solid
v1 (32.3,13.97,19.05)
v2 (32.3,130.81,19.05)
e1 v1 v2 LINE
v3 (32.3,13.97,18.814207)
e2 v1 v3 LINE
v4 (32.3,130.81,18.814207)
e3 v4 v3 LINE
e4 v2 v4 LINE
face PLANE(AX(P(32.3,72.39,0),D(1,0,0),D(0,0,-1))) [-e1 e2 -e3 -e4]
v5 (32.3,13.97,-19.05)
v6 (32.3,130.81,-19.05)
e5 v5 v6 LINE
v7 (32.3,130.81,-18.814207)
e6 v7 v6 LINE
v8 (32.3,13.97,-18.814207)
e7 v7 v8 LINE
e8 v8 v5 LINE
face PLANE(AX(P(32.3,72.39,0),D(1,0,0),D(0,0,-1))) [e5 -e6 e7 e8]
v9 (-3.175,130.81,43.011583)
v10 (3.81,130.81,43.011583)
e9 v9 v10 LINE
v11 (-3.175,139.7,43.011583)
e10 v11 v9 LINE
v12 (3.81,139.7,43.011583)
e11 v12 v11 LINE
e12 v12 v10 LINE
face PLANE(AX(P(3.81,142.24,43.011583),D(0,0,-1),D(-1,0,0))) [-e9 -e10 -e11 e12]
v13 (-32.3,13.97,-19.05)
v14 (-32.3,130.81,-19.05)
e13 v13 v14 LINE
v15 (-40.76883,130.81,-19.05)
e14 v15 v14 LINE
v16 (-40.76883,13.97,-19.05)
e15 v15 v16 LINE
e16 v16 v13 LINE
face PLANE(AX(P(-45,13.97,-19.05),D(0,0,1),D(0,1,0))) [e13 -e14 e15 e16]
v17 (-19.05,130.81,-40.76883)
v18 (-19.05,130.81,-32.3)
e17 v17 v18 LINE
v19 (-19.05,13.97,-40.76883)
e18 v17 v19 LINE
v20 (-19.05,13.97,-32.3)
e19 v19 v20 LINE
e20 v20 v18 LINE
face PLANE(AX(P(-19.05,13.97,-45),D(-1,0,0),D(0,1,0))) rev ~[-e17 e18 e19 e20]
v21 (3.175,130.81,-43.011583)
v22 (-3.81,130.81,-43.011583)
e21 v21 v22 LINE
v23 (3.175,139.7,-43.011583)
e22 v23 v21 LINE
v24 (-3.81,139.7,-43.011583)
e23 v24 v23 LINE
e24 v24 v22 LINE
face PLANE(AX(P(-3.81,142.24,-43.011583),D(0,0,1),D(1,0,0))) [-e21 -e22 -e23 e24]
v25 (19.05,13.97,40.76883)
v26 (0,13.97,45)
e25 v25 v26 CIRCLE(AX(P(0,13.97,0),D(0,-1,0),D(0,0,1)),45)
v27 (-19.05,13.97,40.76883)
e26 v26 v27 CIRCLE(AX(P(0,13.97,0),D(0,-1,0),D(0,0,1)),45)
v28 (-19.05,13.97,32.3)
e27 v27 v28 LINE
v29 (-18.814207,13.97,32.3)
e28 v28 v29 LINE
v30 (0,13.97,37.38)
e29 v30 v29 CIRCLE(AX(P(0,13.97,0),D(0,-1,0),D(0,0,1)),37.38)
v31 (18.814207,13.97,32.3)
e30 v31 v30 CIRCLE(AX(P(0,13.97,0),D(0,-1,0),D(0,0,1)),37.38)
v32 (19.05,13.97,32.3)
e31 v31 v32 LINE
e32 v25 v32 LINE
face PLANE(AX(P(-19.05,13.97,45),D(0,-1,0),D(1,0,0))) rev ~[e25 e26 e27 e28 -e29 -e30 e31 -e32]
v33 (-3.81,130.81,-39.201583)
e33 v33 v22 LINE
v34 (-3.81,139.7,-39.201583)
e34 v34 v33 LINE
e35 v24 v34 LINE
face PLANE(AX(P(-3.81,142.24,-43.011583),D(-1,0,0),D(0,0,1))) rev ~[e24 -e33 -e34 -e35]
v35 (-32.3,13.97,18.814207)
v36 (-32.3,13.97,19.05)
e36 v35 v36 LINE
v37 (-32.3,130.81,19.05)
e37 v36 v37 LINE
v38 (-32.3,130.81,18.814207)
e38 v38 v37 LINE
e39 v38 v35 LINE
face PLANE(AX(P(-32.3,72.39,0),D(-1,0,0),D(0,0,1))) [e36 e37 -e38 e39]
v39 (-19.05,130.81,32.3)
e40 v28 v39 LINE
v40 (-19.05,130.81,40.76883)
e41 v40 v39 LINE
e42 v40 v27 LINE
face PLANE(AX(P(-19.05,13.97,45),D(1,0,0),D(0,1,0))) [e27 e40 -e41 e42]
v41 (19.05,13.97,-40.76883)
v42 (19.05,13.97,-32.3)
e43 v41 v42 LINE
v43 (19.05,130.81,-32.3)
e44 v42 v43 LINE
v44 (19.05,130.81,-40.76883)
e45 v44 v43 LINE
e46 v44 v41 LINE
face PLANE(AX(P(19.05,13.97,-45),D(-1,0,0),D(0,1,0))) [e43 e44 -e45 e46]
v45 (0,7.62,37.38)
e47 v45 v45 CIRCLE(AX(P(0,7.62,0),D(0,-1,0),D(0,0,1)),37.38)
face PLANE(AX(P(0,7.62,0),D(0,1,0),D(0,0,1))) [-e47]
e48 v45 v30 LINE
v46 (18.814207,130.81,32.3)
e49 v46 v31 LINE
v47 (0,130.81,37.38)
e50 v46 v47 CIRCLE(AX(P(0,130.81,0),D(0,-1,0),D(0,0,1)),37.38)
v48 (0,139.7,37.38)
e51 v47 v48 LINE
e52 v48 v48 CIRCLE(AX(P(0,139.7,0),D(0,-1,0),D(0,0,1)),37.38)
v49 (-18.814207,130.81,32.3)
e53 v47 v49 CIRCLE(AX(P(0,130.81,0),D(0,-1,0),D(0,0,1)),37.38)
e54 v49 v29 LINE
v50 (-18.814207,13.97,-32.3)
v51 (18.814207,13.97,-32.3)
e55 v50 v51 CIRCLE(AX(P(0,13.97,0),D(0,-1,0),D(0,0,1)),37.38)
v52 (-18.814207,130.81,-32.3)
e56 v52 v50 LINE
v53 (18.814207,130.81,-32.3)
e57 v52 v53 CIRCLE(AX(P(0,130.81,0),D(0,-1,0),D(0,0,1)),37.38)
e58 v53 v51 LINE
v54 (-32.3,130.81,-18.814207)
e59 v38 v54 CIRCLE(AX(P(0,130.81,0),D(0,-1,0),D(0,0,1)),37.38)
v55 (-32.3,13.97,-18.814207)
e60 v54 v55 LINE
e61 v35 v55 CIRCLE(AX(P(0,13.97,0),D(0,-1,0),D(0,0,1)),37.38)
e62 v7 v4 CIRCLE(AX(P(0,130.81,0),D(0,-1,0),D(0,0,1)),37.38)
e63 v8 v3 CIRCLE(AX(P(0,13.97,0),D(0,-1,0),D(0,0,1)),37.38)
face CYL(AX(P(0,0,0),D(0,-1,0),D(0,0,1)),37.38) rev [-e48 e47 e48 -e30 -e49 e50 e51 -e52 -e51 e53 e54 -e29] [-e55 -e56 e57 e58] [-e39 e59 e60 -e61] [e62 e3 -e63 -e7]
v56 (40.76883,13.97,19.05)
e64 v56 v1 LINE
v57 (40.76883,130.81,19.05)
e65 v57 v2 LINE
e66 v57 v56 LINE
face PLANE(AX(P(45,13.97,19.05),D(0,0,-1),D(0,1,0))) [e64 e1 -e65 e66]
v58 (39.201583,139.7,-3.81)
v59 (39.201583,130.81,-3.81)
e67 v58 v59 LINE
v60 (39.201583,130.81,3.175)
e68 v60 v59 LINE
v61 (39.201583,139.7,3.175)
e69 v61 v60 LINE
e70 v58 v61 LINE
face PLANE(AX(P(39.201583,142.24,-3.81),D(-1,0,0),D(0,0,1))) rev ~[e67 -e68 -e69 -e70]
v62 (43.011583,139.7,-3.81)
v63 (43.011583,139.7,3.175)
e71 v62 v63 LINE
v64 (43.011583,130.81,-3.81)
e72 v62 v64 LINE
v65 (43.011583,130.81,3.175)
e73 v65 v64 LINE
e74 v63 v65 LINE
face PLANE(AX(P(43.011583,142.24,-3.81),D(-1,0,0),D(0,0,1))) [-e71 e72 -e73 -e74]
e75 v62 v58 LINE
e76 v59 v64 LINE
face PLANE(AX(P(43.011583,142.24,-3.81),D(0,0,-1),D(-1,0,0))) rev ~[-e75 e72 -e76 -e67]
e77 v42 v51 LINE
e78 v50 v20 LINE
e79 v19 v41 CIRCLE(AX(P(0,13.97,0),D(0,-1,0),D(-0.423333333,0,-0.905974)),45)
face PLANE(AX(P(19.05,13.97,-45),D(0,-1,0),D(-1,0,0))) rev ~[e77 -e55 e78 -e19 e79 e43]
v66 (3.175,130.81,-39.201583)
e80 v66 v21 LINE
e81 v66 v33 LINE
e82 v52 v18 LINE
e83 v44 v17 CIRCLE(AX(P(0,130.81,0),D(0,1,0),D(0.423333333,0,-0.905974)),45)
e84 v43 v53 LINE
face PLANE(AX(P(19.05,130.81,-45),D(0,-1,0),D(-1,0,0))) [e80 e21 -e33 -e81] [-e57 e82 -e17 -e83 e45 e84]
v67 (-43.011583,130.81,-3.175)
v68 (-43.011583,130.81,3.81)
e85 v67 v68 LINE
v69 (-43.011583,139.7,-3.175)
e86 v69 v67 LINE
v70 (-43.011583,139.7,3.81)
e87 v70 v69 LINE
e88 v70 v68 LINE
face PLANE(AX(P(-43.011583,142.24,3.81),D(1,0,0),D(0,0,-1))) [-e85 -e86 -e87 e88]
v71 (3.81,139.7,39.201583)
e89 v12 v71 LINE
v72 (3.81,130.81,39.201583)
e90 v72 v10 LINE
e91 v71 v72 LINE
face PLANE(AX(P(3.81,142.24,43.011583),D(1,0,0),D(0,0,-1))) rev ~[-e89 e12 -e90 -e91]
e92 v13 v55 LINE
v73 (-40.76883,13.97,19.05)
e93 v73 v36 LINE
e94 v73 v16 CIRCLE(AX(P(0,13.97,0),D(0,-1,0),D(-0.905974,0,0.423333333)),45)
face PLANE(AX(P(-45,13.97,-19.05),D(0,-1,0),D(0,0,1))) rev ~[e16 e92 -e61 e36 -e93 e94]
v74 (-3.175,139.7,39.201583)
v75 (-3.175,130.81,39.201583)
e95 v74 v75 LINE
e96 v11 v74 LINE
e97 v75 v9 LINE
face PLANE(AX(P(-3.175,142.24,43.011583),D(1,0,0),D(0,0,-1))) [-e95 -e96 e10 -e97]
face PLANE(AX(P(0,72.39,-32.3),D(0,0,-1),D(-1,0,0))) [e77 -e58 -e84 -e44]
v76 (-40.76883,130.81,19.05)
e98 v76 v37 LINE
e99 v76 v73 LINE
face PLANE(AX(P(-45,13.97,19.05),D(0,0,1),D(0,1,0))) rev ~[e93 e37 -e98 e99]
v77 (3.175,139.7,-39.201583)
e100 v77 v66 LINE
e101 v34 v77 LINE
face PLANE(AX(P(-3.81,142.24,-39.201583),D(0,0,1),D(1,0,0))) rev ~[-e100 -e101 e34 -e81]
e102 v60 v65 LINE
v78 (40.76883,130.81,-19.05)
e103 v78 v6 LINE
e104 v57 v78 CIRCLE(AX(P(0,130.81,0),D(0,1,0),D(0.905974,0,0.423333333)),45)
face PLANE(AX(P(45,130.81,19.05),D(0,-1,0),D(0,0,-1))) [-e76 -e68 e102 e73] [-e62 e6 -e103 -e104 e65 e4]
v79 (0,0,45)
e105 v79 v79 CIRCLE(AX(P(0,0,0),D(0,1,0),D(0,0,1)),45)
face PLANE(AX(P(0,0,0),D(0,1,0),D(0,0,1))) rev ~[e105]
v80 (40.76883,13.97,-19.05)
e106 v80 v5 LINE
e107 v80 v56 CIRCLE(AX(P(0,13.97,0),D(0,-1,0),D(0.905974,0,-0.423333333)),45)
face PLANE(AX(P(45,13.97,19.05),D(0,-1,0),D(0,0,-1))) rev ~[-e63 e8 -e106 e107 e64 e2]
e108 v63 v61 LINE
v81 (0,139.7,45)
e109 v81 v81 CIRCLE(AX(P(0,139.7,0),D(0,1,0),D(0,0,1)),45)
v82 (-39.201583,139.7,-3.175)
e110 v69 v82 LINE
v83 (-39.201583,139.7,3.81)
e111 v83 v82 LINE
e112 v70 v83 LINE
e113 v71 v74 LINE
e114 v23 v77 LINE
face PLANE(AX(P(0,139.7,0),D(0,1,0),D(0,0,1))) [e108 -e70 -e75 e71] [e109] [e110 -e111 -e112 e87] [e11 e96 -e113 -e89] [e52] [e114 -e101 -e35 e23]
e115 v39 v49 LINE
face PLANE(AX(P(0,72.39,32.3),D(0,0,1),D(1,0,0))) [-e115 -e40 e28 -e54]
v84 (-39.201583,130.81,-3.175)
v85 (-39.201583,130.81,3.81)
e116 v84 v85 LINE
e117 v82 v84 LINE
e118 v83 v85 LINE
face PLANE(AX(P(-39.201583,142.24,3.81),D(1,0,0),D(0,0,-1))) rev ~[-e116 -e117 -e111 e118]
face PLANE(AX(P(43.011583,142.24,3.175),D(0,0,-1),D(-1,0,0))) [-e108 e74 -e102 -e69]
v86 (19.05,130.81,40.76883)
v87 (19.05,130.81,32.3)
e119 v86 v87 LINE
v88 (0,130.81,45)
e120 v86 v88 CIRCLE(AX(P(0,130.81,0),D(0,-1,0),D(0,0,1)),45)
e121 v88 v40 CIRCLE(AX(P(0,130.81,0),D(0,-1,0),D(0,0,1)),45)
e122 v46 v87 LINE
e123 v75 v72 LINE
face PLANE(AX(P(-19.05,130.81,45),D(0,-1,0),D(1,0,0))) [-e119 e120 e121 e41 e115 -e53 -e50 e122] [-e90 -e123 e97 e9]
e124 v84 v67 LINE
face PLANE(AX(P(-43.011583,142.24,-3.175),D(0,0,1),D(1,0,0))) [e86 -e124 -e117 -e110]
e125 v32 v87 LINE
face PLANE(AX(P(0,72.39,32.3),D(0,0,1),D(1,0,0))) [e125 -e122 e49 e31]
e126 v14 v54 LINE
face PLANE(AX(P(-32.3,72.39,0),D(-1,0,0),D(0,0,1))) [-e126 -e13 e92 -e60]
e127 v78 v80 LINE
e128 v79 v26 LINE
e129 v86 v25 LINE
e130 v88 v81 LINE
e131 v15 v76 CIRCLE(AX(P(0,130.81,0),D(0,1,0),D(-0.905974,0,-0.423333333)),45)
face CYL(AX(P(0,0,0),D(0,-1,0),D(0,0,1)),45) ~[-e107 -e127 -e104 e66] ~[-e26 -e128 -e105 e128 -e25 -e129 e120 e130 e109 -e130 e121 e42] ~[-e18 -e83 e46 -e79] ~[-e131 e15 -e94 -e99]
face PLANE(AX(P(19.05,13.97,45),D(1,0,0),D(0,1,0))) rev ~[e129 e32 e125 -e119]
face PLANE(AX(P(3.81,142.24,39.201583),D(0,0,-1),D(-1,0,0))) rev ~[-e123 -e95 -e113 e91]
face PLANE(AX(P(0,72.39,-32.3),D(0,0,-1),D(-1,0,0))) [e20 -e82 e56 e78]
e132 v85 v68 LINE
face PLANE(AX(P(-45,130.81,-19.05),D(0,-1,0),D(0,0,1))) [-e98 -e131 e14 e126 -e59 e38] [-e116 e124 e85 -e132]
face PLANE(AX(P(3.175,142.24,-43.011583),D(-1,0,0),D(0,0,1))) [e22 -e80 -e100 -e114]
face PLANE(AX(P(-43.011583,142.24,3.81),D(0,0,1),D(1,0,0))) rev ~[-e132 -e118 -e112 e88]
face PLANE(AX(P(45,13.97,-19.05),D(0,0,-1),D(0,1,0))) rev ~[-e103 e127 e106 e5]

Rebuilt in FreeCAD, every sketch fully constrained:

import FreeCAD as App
import Part
import Sketcher

V = App.Vector
Q = App.Units.Quantity


def faces_at(feature, points):
    """Names of the faces that lie closest to the given points."""
    faces = feature.Shape.Faces
    near = lambda p: min(range(len(faces)), key=lambda i: faces[i].distToShape(Part.Vertex(*p))[0])
    return sorted({f"Face{near(p) + 1}" for p in points})


def add_polygon(sketch, points):
    """Adds a closed chain of lines whose ends are joined by coincident constraints."""
    first, n = sketch.GeometryCount, len(points)
    for a, b in zip(points, points[1:] + points[:1]):
        sketch.addGeometry(Part.LineSegment(App.Vector(*a, 0), App.Vector(*b, 0)), False)
    for i in range(n):
        sketch.addConstraint(Sketcher.Constraint("Coincident", first + i, 2, first + (i + 1) % n, 1))

doc = App.newDocument("Part")
params = doc.addObject("Spreadsheet::Sheet", "Params")
for row, (alias, value) in enumerate([
    ("pad1_length", "5.5 in"),
    ("thickness_wall", "0.3 in"),
    ("sketch2_width", "4.6 in"),
    ("sketch2_height", "1.5 in"),
    ("pocket1_length", "0.5 in"),
    ("sketch3_width", "0.15 in"),
    ("sketch3_height", "0.275 in"),
    ("pocket2_length", "0.5 in"),
], start=1):
    params.set(f"A{row}", alias)
    params.set(f"B{row}", "=" + value)
    params.setAlias(f"B{row}", alias)

body = doc.addObject("PartDesign::Body", "Body")

# Sketch on XZ plane
sketch1 = doc.addObject("Sketcher::SketchObject", "Sketch")
body.addObject(sketch1)
sketch1.AttachmentSupport = (doc.XZ_Plane, [""])
sketch1.MapMode = "FlatFace"
sketch1.addGeometry(Part.Circle(V(0, 0, 0), V(0, 0, 1), 45), False)
sketch1.addConstraint(Sketcher.Constraint("Coincident", 0, 3, -1, 1))
sketch1.addConstraint(Sketcher.Constraint("Diameter", 0, Q("90 mm")))
pad1 = doc.addObject("PartDesign::Pad", "Pad")
body.addObject(pad1)
pad1.Profile = sketch1
pad1.setExpression("Length", "Params.pad1_length")
pad1.Reversed = True
doc.recompute()

thickness = doc.addObject("PartDesign::Thickness", "Thickness")
body.addObject(thickness)
thickness.Base = (pad1, faces_at(pad1, [(0, 139.7, 0)]))
thickness.setExpression("Value", "Params.thickness_wall")
thickness.Reversed = True
thickness.Join = "Intersection"

# Sketch on YZ plane
sketch2 = doc.addObject("Sketcher::SketchObject", "Sketch001")
body.addObject(sketch2)
sketch2.AttachmentSupport = (doc.YZ_Plane, [""])
sketch2.MapMode = "FlatFace"
sketch2.AttachmentOffset = App.Placement(V(0, 0, 45), App.Rotation())
add_polygon(sketch2, [(131, 19), (14, 19), (14, -19), (131, -19)])  # lines 0-3
sketch2.addConstraint(Sketcher.Constraint("Horizontal", 0))
sketch2.addConstraint(Sketcher.Constraint("Vertical", 1))
sketch2.addConstraint(Sketcher.Constraint("Horizontal", 2))
sketch2.addConstraint(Sketcher.Constraint("Vertical", 3))
sketch2.addConstraint(Sketcher.Constraint("DistanceX", 0, 2, 0, 1, Q("4.6 in")))
sketch2.addConstraint(Sketcher.Constraint("DistanceY", 1, 2, 1, 1, Q("1.5 in")))
sketch2.addConstraint(Sketcher.Constraint("DistanceX", -1, 1, 0, 2, Q("0.55 in")))
sketch2.addConstraint(Sketcher.Constraint("DistanceY", -1, 1, 0, 2, Q("0.75 in")))
sketch2.setExpression("Constraints[8]", "Params.sketch2_width")
sketch2.setExpression("Constraints[9]", "Params.sketch2_height")
pocket1 = doc.addObject("PartDesign::Pocket", "Pocket")
body.addObject(pocket1)
pocket1.Profile = sketch2
pocket1.setExpression("Length", "Params.pocket1_length")
doc.recompute()

polarpattern = doc.addObject("PartDesign::PolarPattern", "PolarPattern")
body.addObject(polarpattern)
polarpattern.Originals = [pocket1]
polarpattern.Axis = (doc.Y_Axis, [""])
polarpattern.Angle = 360
polarpattern.Occurrences = 4
body.Tip = polarpattern

# Sketch on XZ plane
sketch3 = doc.addObject("Sketcher::SketchObject", "Sketch002")
body.addObject(sketch3)
sketch3.AttachmentSupport = (doc.XZ_Plane, [""])
sketch3.MapMode = "FlatFace"
sketch3.AttachmentOffset = App.Placement(V(0, 0, -5.6 * 25.4), App.Rotation())
add_polygon(sketch3, [(-43, -3.2), (-43, 3.8), (-39.2, 3.8), (-39.2, -3.2)])  # lines 0-3
sketch3.addConstraint(Sketcher.Constraint("Vertical", 0))
sketch3.addConstraint(Sketcher.Constraint("Horizontal", 1))
sketch3.addConstraint(Sketcher.Constraint("Vertical", 2))
sketch3.addConstraint(Sketcher.Constraint("Horizontal", 3))
sketch3.addConstraint(Sketcher.Constraint("DistanceX", 1, 1, 1, 2, Q("0.15 in")))
sketch3.addConstraint(Sketcher.Constraint("DistanceY", 0, 1, 0, 2, Q("0.275 in")))
sketch3.addConstraint(Sketcher.Constraint("DistanceY", -1, 1, 0, 2, Q("0.15 in")))
sketch3.addConstraint(Sketcher.Constraint("DistanceX", 0, 2, -1, 1, Q("43.011583 mm")))
sketch3.setExpression("Constraints[8]", "Params.sketch3_width")
sketch3.setExpression("Constraints[9]", "Params.sketch3_height")
pocket2 = doc.addObject("PartDesign::Pocket", "Pocket001")
body.addObject(pocket2)
pocket2.Profile = sketch3
pocket2.setExpression("Length", "Params.pocket2_length")
pocket2.Reversed = True
doc.recompute()

polarpattern2 = doc.addObject("PartDesign::PolarPattern", "PolarPattern001")
body.addObject(polarpattern2)
polarpattern2.Originals = [pocket2]
polarpattern2.Axis = (doc.Y_Axis, [""])
polarpattern2.Angle = 360
polarpattern2.Occurrences = 4
body.Tip = polarpattern2

doc.recompute()
